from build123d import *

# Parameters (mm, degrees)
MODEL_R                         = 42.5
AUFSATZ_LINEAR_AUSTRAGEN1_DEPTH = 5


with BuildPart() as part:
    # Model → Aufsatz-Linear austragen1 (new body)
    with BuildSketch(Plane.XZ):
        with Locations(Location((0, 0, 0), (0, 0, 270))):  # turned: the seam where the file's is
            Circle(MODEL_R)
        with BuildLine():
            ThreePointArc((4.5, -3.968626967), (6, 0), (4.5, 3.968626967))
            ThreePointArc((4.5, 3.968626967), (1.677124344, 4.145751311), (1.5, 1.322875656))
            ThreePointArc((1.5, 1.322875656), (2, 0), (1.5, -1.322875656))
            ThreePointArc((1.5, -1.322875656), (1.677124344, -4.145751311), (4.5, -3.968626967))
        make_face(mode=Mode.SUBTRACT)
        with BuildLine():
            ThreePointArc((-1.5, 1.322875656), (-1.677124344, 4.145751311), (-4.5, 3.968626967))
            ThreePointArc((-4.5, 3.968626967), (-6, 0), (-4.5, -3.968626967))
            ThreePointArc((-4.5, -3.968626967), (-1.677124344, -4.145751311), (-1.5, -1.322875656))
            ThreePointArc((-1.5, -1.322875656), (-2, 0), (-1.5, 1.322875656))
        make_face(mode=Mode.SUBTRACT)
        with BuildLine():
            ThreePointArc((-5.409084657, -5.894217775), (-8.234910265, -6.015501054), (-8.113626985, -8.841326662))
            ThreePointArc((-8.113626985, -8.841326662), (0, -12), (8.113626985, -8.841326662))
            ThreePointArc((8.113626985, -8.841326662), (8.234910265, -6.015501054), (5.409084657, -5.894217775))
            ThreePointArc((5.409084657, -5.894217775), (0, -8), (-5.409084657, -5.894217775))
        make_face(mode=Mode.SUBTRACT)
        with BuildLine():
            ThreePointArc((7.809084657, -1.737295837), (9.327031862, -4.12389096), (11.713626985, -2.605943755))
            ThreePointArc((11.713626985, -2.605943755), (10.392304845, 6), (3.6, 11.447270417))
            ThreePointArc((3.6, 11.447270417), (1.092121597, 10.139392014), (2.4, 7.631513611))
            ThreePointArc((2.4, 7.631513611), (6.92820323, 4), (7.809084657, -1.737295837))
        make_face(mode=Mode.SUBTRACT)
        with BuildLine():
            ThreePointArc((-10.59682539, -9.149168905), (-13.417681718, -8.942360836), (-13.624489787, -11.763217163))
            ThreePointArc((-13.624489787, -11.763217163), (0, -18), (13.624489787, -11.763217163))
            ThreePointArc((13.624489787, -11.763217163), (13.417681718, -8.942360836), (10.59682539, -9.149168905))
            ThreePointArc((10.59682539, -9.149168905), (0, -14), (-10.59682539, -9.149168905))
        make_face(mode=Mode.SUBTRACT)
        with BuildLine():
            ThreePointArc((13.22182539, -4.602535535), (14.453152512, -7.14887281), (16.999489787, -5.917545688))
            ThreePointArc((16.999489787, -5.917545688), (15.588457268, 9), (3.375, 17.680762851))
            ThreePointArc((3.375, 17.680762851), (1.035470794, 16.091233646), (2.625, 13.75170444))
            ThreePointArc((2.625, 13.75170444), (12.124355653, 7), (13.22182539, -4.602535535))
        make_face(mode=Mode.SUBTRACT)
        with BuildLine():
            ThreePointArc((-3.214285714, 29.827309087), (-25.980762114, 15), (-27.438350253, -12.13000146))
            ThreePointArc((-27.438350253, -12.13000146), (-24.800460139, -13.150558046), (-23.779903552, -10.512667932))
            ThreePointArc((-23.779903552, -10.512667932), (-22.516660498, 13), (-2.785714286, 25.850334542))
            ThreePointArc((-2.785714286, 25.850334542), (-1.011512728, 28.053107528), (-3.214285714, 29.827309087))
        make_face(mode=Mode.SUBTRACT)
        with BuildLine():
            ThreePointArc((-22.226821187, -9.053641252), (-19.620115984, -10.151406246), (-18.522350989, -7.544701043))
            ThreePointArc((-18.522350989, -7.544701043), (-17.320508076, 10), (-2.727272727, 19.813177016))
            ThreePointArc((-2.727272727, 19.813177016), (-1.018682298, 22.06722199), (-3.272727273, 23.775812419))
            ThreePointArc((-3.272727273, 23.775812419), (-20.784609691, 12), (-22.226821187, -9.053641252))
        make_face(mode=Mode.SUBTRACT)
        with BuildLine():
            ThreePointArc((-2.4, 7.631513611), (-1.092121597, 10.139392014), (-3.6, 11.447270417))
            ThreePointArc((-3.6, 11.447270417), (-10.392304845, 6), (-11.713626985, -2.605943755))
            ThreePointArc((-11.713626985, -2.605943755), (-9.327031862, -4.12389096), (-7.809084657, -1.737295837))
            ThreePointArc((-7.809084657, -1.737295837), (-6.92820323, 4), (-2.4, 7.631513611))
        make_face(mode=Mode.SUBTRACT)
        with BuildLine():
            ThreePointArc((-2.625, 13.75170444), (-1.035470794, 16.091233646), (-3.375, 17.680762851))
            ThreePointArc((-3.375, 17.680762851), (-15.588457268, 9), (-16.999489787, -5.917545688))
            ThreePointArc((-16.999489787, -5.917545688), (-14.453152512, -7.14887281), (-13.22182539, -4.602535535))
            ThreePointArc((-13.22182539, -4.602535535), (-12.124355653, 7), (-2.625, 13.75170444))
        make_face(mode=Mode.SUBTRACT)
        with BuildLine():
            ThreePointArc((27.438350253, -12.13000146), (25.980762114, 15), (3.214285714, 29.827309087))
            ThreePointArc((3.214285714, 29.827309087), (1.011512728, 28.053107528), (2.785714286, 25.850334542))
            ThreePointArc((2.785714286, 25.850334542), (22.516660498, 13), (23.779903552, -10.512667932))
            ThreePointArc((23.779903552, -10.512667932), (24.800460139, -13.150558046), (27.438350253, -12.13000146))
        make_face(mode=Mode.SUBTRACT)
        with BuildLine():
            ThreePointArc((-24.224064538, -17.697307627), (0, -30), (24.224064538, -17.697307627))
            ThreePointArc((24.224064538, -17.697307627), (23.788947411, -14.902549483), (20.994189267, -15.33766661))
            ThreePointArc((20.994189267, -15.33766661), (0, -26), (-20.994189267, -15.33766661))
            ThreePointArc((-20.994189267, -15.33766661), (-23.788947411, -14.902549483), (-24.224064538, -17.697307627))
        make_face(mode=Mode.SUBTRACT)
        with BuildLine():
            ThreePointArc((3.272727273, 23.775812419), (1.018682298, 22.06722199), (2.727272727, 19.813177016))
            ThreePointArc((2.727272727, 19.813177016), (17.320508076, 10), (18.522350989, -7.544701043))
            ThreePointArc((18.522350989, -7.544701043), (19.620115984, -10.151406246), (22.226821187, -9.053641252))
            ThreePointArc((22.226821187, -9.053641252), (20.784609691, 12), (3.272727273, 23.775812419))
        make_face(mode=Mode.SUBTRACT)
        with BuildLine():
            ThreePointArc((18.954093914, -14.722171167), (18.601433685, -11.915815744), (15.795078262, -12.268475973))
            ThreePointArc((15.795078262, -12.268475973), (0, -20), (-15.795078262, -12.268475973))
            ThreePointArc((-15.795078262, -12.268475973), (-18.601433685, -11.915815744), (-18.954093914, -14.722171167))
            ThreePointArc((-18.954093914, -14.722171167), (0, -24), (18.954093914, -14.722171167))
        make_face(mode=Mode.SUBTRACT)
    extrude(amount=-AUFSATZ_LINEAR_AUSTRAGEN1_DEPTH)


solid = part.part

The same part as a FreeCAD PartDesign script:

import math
import FreeCAD as App
import Part
import Sketcher
from FreeCAD import Vector

doc = App.newDocument("Part")
body = doc.addObject("PartDesign::Body", "Body")

# Sketch on XZ plane
sketch1 = doc.addObject("Sketcher::SketchObject", "Sketch")
body.addObject(sketch1)
sketch1.AttachmentSupport = (doc.XZ_Plane, [""])
sketch1.MapMode = "FlatFace"
sketch1.addGeometry(Part.Circle(Vector(0, 0, 0), Vector(0, 0, 1), 42.5), False)
sketch1.addGeometry(Part.ArcOfCircle(Part.Circle(Vector(0, 0, 0), Vector(0, 0, 1), 30), math.radians(96.15064), math.radians(203.84936)), False)
sketch1.addGeometry(Part.ArcOfCircle(Part.Circle(Vector(-3, 27.838822, 0), Vector(0, 0, 1), 2), math.radians(-83.84936), math.radians(96.15064)), False)
sketch1.addGeometry(Part.ArcOfCircle(Part.Circle(Vector(0, 0, 0), Vector(0, 0, 1), 26), math.radians(96.15064), math.radians(203.84936)), False)
sketch1.addGeometry(Part.ArcOfCircle(Part.Circle(Vector(-25.609127, -11.321335, 0), Vector(0, 0, 1), 2), math.radians(-156.15064), math.radians(23.84936)), False)
sketch1.addGeometry(Part.ArcOfCircle(Part.Circle(Vector(-20.374586, -8.299171, 0), Vector(0, 0, 1), 2), math.radians(-157.83748), math.radians(22.16252)), False)
sketch1.addGeometry(Part.ArcOfCircle(Part.Circle(Vector(0, 0, 0), Vector(0, 0, 1), 24), math.radians(97.83748), math.radians(202.16252)), False)
sketch1.addGeometry(Part.ArcOfCircle(Part.Circle(Vector(-3, 21.794495, 0), Vector(0, 0, 1), 2), math.radians(-82.16252), math.radians(97.83748)), False)
sketch1.addGeometry(Part.ArcOfCircle(Part.Circle(Vector(0, 0, 0), Vector(0, 0, 1), 20), math.radians(97.83748), math.radians(202.16252)), False)
sketch1.addGeometry(Part.ArcOfCircle(Part.Circle(Vector(-3, 15.716234, 0), Vector(0, 0, 1), 2), math.radians(-79.193077), math.radians(100.806923)), False)
sketch1.addGeometry(Part.ArcOfCircle(Part.Circle(Vector(0, 0, 0), Vector(0, 0, 1), 14), math.radians(100.806923), math.radians(199.193077)), False)
sketch1.addGeometry(Part.ArcOfCircle(Part.Circle(Vector(-15.110658, -5.260041, 0), Vector(0, 0, 1), 2), math.radians(-160.806923), math.radians(19.193077)), False)
sketch1.addGeometry(Part.ArcOfCircle(Part.Circle(Vector(0, 0, 0), Vector(0, 0, 1), 18), math.radians(100.806923), math.radians(199.193077)), False)
sketch1.addGeometry(Part.ArcOfCircle(Part.Circle(Vector(-3, 9.539392, 0), Vector(0, 0, 1), 2), math.radians(-72.542397), math.radians(107.457603)), False)
sketch1.addGeometry(Part.ArcOfCircle(Part.Circle(Vector(0, 0, 0), Vector(0, 0, 1), 8), math.radians(107.457603), math.radians(192.542397)), False)
sketch1.addGeometry(Part.ArcOfCircle(Part.Circle(Vector(-9.761356, -2.17162, 0), Vector(0, 0, 1), 2), math.radians(-167.457603), math.radians(12.542397)), False)
sketch1.addGeometry(Part.ArcOfCircle(Part.Circle(Vector(0, 0, 0), Vector(0, 0, 1), 12), math.radians(107.457603), math.radians(192.542397)), False)
sketch1.addGeometry(Part.ArcOfCircle(Part.Circle(Vector(-3, 2.645751, 0), Vector(0, 0, 1), 2), math.radians(-41.409622), math.radians(138.590378)), False)
sketch1.addGeometry(Part.ArcOfCircle(Part.Circle(Vector(0, 0, 0), Vector(0, 0, 1), 2), math.radians(138.590378), math.radians(221.409622)), False)
sketch1.addGeometry(Part.ArcOfCircle(Part.Circle(Vector(-3, -2.645751, 0), Vector(0, 0, 1), 2), math.radians(-138.590378), math.radians(41.409622)), False)
sketch1.addGeometry(Part.ArcOfCircle(Part.Circle(Vector(0, 0, 0), Vector(0, 0, 1), 6), math.radians(138.590378), math.radians(221.409622)), False)
sketch1.addGeometry(Part.ArcOfCircle(Part.Circle(Vector(0, 0, 0), Vector(0, 0, 1), 6), math.radians(-41.409622), math.radians(41.409622)), False)
sketch1.addGeometry(Part.ArcOfCircle(Part.Circle(Vector(3, -2.645751, 0), Vector(0, 0, 1), 2), math.radians(138.590378), math.radians(318.590378)), False)
sketch1.addGeometry(Part.ArcOfCircle(Part.Circle(Vector(0, 0, 0), Vector(0, 0, 1), 2), math.radians(-41.409622), math.radians(41.409622)), False)
sketch1.addGeometry(Part.ArcOfCircle(Part.Circle(Vector(3, 2.645751, 0), Vector(0, 0, 1), 2), math.radians(41.409622), math.radians(221.409622)), False)
sketch1.addGeometry(Part.ArcOfCircle(Part.Circle(Vector(9.761356, -2.17162, 0), Vector(0, 0, 1), 2), math.radians(167.457603), math.radians(347.457603)), False)
sketch1.addGeometry(Part.ArcOfCircle(Part.Circle(Vector(0, 0, 0), Vector(0, 0, 1), 8), math.radians(-12.542397), math.radians(72.542397)), False)
sketch1.addGeometry(Part.ArcOfCircle(Part.Circle(Vector(3, 9.539392, 0), Vector(0, 0, 1), 2), math.radians(72.542397), math.radians(252.542397)), False)
sketch1.addGeometry(Part.ArcOfCircle(Part.Circle(Vector(0, 0, 0), Vector(0, 0, 1), 12), math.radians(-12.542397), math.radians(72.542397)), False)
sketch1.addGeometry(Part.ArcOfCircle(Part.Circle(Vector(15.110658, -5.260041, 0), Vector(0, 0, 1), 2), math.radians(160.806923), math.radians(340.806923)), False)
sketch1.addGeometry(Part.ArcOfCircle(Part.Circle(Vector(0, 0, 0), Vector(0, 0, 1), 14), math.radians(-19.193077), math.radians(79.193077)), False)
sketch1.addGeometry(Part.ArcOfCircle(Part.Circle(Vector(3, 15.716234, 0), Vector(0, 0, 1), 2), math.radians(79.193077), math.radians(259.193077)), False)
sketch1.addGeometry(Part.ArcOfCircle(Part.Circle(Vector(0, 0, 0), Vector(0, 0, 1), 18), math.radians(-19.193077), math.radians(79.193077)), False)
sketch1.addGeometry(Part.ArcOfCircle(Part.Circle(Vector(3, 21.794495, 0), Vector(0, 0, 1), 2), math.radians(82.16252), math.radians(262.16252)), False)
sketch1.addGeometry(Part.ArcOfCircle(Part.Circle(Vector(0, 0, 0), Vector(0, 0, 1), 24), math.radians(-22.16252), math.radians(82.16252)), False)
sketch1.addGeometry(Part.ArcOfCircle(Part.Circle(Vector(20.374586, -8.299171, 0), Vector(0, 0, 1), 2), math.radians(157.83748), math.radians(337.83748)), False)
sketch1.addGeometry(Part.ArcOfCircle(Part.Circle(Vector(0, 0, 0), Vector(0, 0, 1), 20), math.radians(-22.16252), math.radians(82.16252)), False)
sketch1.addGeometry(Part.ArcOfCircle(Part.Circle(Vector(0, 0, 0), Vector(0, 0, 1), 30), math.radians(-23.84936), math.radians(83.84936)), False)
sketch1.addGeometry(Part.ArcOfCircle(Part.Circle(Vector(25.609127, -11.321335, 0), Vector(0, 0, 1), 2), math.radians(156.15064), math.radians(336.15064)), False)
sketch1.addGeometry(Part.ArcOfCircle(Part.Circle(Vector(0, 0, 0), Vector(0, 0, 1), 26), math.radians(-23.84936), math.radians(83.84936)), False)
sketch1.addGeometry(Part.ArcOfCircle(Part.Circle(Vector(3, 27.838822, 0), Vector(0, 0, 1), 2), math.radians(83.84936), math.radians(263.84936)), False)
sketch1.addGeometry(Part.ArcOfCircle(Part.Circle(Vector(-6.761356, -7.367772, 0), Vector(0, 0, 1), 2), math.radians(47.457603), math.radians(227.457603)), False)
sketch1.addGeometry(Part.ArcOfCircle(Part.Circle(Vector(0, 0, 0), Vector(0, 0, 1), 8), math.radians(-132.542397), math.radians(-47.457603)), False)
sketch1.addGeometry(Part.ArcOfCircle(Part.Circle(Vector(6.761356, -7.367772, 0), Vector(0, 0, 1), 2), math.radians(-47.457603), math.radians(132.542397)), False)
sketch1.addGeometry(Part.ArcOfCircle(Part.Circle(Vector(0, 0, 0), Vector(0, 0, 1), 12), math.radians(-132.542397), math.radians(-47.457603)), False)
sketch1.addGeometry(Part.ArcOfCircle(Part.Circle(Vector(-12.110658, -10.456193, 0), Vector(0, 0, 1), 2), math.radians(40.806923), math.radians(220.806923)), False)
sketch1.addGeometry(Part.ArcOfCircle(Part.Circle(Vector(0, 0, 0), Vector(0, 0, 1), 14), math.radians(-139.193077), math.radians(-40.806923)), False)
sketch1.addGeometry(Part.ArcOfCircle(Part.Circle(Vector(12.110658, -10.456193, 0), Vector(0, 0, 1), 2), math.radians(-40.806923), math.radians(139.193077)), False)
sketch1.addGeometry(Part.ArcOfCircle(Part.Circle(Vector(0, 0, 0), Vector(0, 0, 1), 18), math.radians(-139.193077), math.radians(-40.806923)), False)
sketch1.addGeometry(Part.ArcOfCircle(Part.Circle(Vector(17.374586, -13.495324, 0), Vector(0, 0, 1), 2), math.radians(-37.83748), math.radians(142.16252)), False)
sketch1.addGeometry(Part.ArcOfCircle(Part.Circle(Vector(0, 0, 0), Vector(0, 0, 1), 24), math.radians(-142.16252), math.radians(-37.83748)), False)
sketch1.addGeometry(Part.ArcOfCircle(Part.Circle(Vector(-17.374586, -13.495324, 0), Vector(0, 0, 1), 2), math.radians(37.83748), math.radians(217.83748)), False)
sketch1.addGeometry(Part.ArcOfCircle(Part.Circle(Vector(0, 0, 0), Vector(0, 0, 1), 20), math.radians(-142.16252), math.radians(-37.83748)), False)
sketch1.addGeometry(Part.ArcOfCircle(Part.Circle(Vector(0, 0, 0), Vector(0, 0, 1), 30), math.radians(-143.84936), math.radians(-36.15064)), False)
sketch1.addGeometry(Part.ArcOfCircle(Part.Circle(Vector(-22.609127, -16.517487, 0), Vector(0, 0, 1), 2), math.radians(36.15064), math.radians(216.15064)), False)
sketch1.addGeometry(Part.ArcOfCircle(Part.Circle(Vector(0, 0, 0), Vector(0, 0, 1), 26), math.radians(-143.84936), math.radians(-36.15064)), False)
sketch1.addGeometry(Part.ArcOfCircle(Part.Circle(Vector(22.609127, -16.517487, 0), Vector(0, 0, 1), 2), math.radians(-36.15064), math.radians(143.84936)), False)
sketch1.addConstraint(Sketcher.Constraint("Tangent", 1, 1, 2, 2))
sketch1.addConstraint(Sketcher.Constraint("Tangent", 2, 1, 3, 1))
sketch1.addConstraint(Sketcher.Constraint("Tangent", 3, 2, 4, 2))
sketch1.addConstraint(Sketcher.Constraint("Tangent", 4, 1, 1, 2))
sketch1.addConstraint(Sketcher.Constraint("Tangent", 5, 1, 6, 2))
sketch1.addConstraint(Sketcher.Constraint("Tangent", 6, 1, 7, 2))
sketch1.addConstraint(Sketcher.Constraint("Tangent", 7, 1, 8, 1))
sketch1.addConstraint(Sketcher.Constraint("Tangent", 8, 2, 5, 2))
sketch1.addConstraint(Sketcher.Constraint("Tangent", 9, 1, 10, 1))
sketch1.addConstraint(Sketcher.Constraint("Tangent", 10, 2, 11, 2))
sketch1.addConstraint(Sketcher.Constraint("Tangent", 11, 1, 12, 2))
sketch1.addConstraint(Sketcher.Constraint("Tangent", 12, 1, 9, 2))
sketch1.addConstraint(Sketcher.Constraint("Tangent", 13, 1, 14, 1))
sketch1.addConstraint(Sketcher.Constraint("Tangent", 14, 2, 15, 2))
sketch1.addConstraint(Sketcher.Constraint("Tangent", 15, 1, 16, 2))
sketch1.addConstraint(Sketcher.Constraint("Tangent", 16, 1, 13, 2))
sketch1.addConstraint(Sketcher.Constraint("Tangent", 17, 1, 18, 1))
sketch1.addConstraint(Sketcher.Constraint("Tangent", 18, 2, 19, 2))
sketch1.addConstraint(Sketcher.Constraint("Tangent", 19, 1, 20, 2))
sketch1.addConstraint(Sketcher.Constraint("Tangent", 20, 1, 17, 2))
sketch1.addConstraint(Sketcher.Constraint("Tangent", 21, 1, 22, 2))
sketch1.addConstraint(Sketcher.Constraint("Tangent", 22, 1, 23, 1))
sketch1.addConstraint(Sketcher.Constraint("Tangent", 23, 2, 24, 2))
sketch1.addConstraint(Sketcher.Constraint("Tangent", 24, 1, 21, 2))
sketch1.addConstraint(Sketcher.Constraint("Tangent", 25, 1, 26, 1))
sketch1.addConstraint(Sketcher.Constraint("Tangent", 26, 2, 27, 2))
sketch1.addConstraint(Sketcher.Constraint("Tangent", 27, 1, 28, 2))
sketch1.addConstraint(Sketcher.Constraint("Tangent", 28, 1, 25, 2))
sketch1.addConstraint(Sketcher.Constraint("Tangent", 29, 1, 30, 1))
sketch1.addConstraint(Sketcher.Constraint("Tangent", 30, 2, 31, 2))
sketch1.addConstraint(Sketcher.Constraint("Tangent", 31, 1, 32, 2))
sketch1.addConstraint(Sketcher.Constraint("Tangent", 32, 1, 29, 2))
sketch1.addConstraint(Sketcher.Constraint("Tangent", 33, 1, 34, 2))
sketch1.addConstraint(Sketcher.Constraint("Tangent", 34, 1, 35, 2))
sketch1.addConstraint(Sketcher.Constraint("Tangent", 35, 1, 36, 1))
sketch1.addConstraint(Sketcher.Constraint("Tangent", 36, 2, 33, 2))
sketch1.addConstraint(Sketcher.Constraint("Tangent", 37, 1, 38, 2))
sketch1.addConstraint(Sketcher.Constraint("Tangent", 38, 1, 39, 1))
sketch1.addConstraint(Sketcher.Constraint("Tangent", 39, 2, 40, 2))
sketch1.addConstraint(Sketcher.Constraint("Tangent", 40, 1, 37, 2))
sketch1.addConstraint(Sketcher.Constraint("Tangent", 41, 1, 42, 1))
sketch1.addConstraint(Sketcher.Constraint("Tangent", 42, 2, 43, 2))
sketch1.addConstraint(Sketcher.Constraint("Tangent", 43, 1, 44, 2))
sketch1.addConstraint(Sketcher.Constraint("Tangent", 44, 1, 41, 2))
sketch1.addConstraint(Sketcher.Constraint("Tangent", 45, 1, 46, 1))
sketch1.addConstraint(Sketcher.Constraint("Tangent", 46, 2, 47, 2))
sketch1.addConstraint(Sketcher.Constraint("Tangent", 47, 1, 48, 2))
sketch1.addConstraint(Sketcher.Constraint("Tangent", 48, 1, 45, 2))
sketch1.addConstraint(Sketcher.Constraint("Tangent", 49, 1, 50, 2))
sketch1.addConstraint(Sketcher.Constraint("Tangent", 50, 1, 51, 2))
sketch1.addConstraint(Sketcher.Constraint("Tangent", 51, 1, 52, 1))
sketch1.addConstraint(Sketcher.Constraint("Tangent", 52, 2, 49, 2))
sketch1.addConstraint(Sketcher.Constraint("Tangent", 53, 1, 54, 2))
sketch1.addConstraint(Sketcher.Constraint("Tangent", 54, 1, 55, 1))
sketch1.addConstraint(Sketcher.Constraint("Tangent", 55, 2, 56, 2))
sketch1.addConstraint(Sketcher.Constraint("Tangent", 56, 1, 53, 2))
sketch1.addConstraint(Sketcher.Constraint("Coincident", 0, 3, -1, 1))
sketch1.addConstraint(Sketcher.Constraint("Coincident", 1, 3, -1, 1))
sketch1.addConstraint(Sketcher.Constraint("Coincident", 3, 3, -1, 1))
sketch1.addConstraint(Sketcher.Constraint("Coincident", 6, 3, -1, 1))
sketch1.addConstraint(Sketcher.Constraint("Coincident", 8, 3, -1, 1))
sketch1.addConstraint(Sketcher.Constraint("Coincident", 10, 3, -1, 1))
sketch1.addConstraint(Sketcher.Constraint("Coincident", 12, 3, -1, 1))
sketch1.addConstraint(Sketcher.Constraint("Coincident", 14, 3, -1, 1))
sketch1.addConstraint(Sketcher.Constraint("Coincident", 16, 3, -1, 1))
sketch1.addConstraint(Sketcher.Constraint("Coincident", 18, 3, -1, 1))
sketch1.addConstraint(Sketcher.Constraint("Coincident", 20, 3, -1, 1))
sketch1.addConstraint(Sketcher.Constraint("Coincident", 21, 3, -1, 1))
sketch1.addConstraint(Sketcher.Constraint("Coincident", 23, 3, -1, 1))
sketch1.addConstraint(Sketcher.Constraint("Coincident", 26, 3, -1, 1))
sketch1.addConstraint(Sketcher.Constraint("Coincident", 28, 3, -1, 1))
sketch1.addConstraint(Sketcher.Constraint("Coincident", 30, 3, -1, 1))
sketch1.addConstraint(Sketcher.Constraint("Coincident", 32, 3, -1, 1))
sketch1.addConstraint(Sketcher.Constraint("Coincident", 34, 3, -1, 1))
sketch1.addConstraint(Sketcher.Constraint("Coincident", 36, 3, -1, 1))
sketch1.addConstraint(Sketcher.Constraint("Coincident", 37, 3, -1, 1))
sketch1.addConstraint(Sketcher.Constraint("Coincident", 39, 3, -1, 1))
sketch1.addConstraint(Sketcher.Constraint("Coincident", 42, 3, -1, 1))
sketch1.addConstraint(Sketcher.Constraint("Coincident", 44, 3, -1, 1))
sketch1.addConstraint(Sketcher.Constraint("Coincident", 46, 3, -1, 1))
sketch1.addConstraint(Sketcher.Constraint("Coincident", 48, 3, -1, 1))
sketch1.addConstraint(Sketcher.Constraint("Coincident", 50, 3, -1, 1))
sketch1.addConstraint(Sketcher.Constraint("Coincident", 52, 3, -1, 1))
sketch1.addConstraint(Sketcher.Constraint("Coincident", 53, 3, -1, 1))
sketch1.addConstraint(Sketcher.Constraint("Coincident", 55, 3, -1, 1))
sketch1.addConstraint(Sketcher.Constraint("Equal", 4, 5))
sketch1.addConstraint(Sketcher.Constraint("Equal", 7, 9))
sketch1.addConstraint(Sketcher.Constraint("Equal", 11, 13))
sketch1.addConstraint(Sketcher.Constraint("Equal", 15, 17))
sketch1.addConstraint(Sketcher.Constraint("Equal", 17, 18))
sketch1.addConstraint(Sketcher.Constraint("Equal", 20, 21))
sketch1.addConstraint(Sketcher.Constraint("Equal", 19, 22))
sketch1.addConstraint(Sketcher.Constraint("Equal", 24, 25))
sketch1.addConstraint(Sketcher.Constraint("Equal", 14, 26))
sketch1.addConstraint(Sketcher.Constraint("Equal", 27, 29))
sketch1.addConstraint(Sketcher.Constraint("Equal", 10, 30))
sketch1.addConstraint(Sketcher.Constraint("Equal", 31, 33))
sketch1.addConstraint(Sketcher.Constraint("Equal", 6, 34))
sketch1.addConstraint(Sketcher.Constraint("Equal", 1, 37))
sketch1.addConstraint(Sketcher.Constraint("Equal", 35, 38))
sketch1.addConstraint(Sketcher.Constraint("Equal", 40, 41))
sketch1.addConstraint(Sketcher.Constraint("Equal", 26, 42))
sketch1.addConstraint(Sketcher.Constraint("Equal", 43, 45))
sketch1.addConstraint(Sketcher.Constraint("Equal", 30, 46))
sketch1.addConstraint(Sketcher.Constraint("Equal", 47, 49))
sketch1.addConstraint(Sketcher.Constraint("Equal", 34, 50))
sketch1.addConstraint(Sketcher.Constraint("Equal", 37, 53))
sketch1.addConstraint(Sketcher.Constraint("Equal", 51, 54))
sketch1.addConstraint(Sketcher.Constraint("Horizontal", 19, 3, 22, 3))
sketch1.addConstraint(Sketcher.Constraint("Horizontal", 17, 3, 24, 3))
sketch1.addConstraint(Sketcher.Constraint("Horizontal", 15, 3, 25, 3))
sketch1.addConstraint(Sketcher.Constraint("Horizontal", 13, 3, 27, 3))
sketch1.addConstraint(Sketcher.Constraint("Horizontal", 11, 3, 29, 3))
sketch1.addConstraint(Sketcher.Constraint("Horizontal", 9, 3, 31, 3))
sketch1.addConstraint(Sketcher.Constraint("Horizontal", 7, 3, 33, 3))
sketch1.addConstraint(Sketcher.Constraint("Horizontal", 5, 3, 35, 3))
sketch1.addConstraint(Sketcher.Constraint("Horizontal", 4, 3, 38, 3))
sketch1.addConstraint(Sketcher.Constraint("Horizontal", 2, 3, 40, 3))
sketch1.addConstraint(Sketcher.Constraint("Horizontal", 41, 3, 43, 3))
sketch1.addConstraint(Sketcher.Constraint("Horizontal", 45, 3, 47, 3))
sketch1.addConstraint(Sketcher.Constraint("Horizontal", 49, 3, 51, 3))
sketch1.addConstraint(Sketcher.Constraint("Horizontal", 54, 3, 56, 3))
sketch1.addConstraint(Sketcher.Constraint("Vertical", 2, 3, 7, 3))
sketch1.addConstraint(Sketcher.Constraint("Vertical", 7, 3, 9, 3))
sketch1.addConstraint(Sketcher.Constraint("Vertical", 9, 3, 13, 3))
sketch1.addConstraint(Sketcher.Constraint("Vertical", 13, 3, 17, 3))
sketch1.addConstraint(Sketcher.Constraint("Vertical", 17, 3, 19, 3))
sketch1.addConstraint(Sketcher.Constraint("Diameter", 0, 85.0))
sketch1.addConstraint(Sketcher.Constraint("Radius", 1, 30.0))
sketch1.addConstraint(Sketcher.Constraint("Radius", 2, 2.0))
sketch1.addConstraint(Sketcher.Constraint("Radius", 6, 24.0))
sketch1.addConstraint(Sketcher.Constraint("Radius", 10, 14.0))
sketch1.addConstraint(Sketcher.Constraint("Radius", 14, 8.0))
sketch1.addConstraint(Sketcher.Constraint("DistanceX", 2, 3, -1, 1, 3.0))
sketch1.addConstraint(Sketcher.Constraint("DistanceY", 4, 1, -1, 1, 12.130001))
sketch1.addConstraint(Sketcher.Constraint("DistanceY", 8, 2, -1, 1, 7.544701))
sketch1.addConstraint(Sketcher.Constraint("DistanceY", 11, 3, -1, 1, 5.260041))
sketch1.addConstraint(Sketcher.Constraint("DistanceY", 15, 3, -1, 1, 2.17162))
sketch1.addConstraint(Sketcher.Constraint("DistanceY", 45, 1, -1, 1, 9.149169))
sketch1.addConstraint(Sketcher.Constraint("DistanceY", 49, 1, -1, 1, 14.722171))
sketch1.addConstraint(Sketcher.Constraint("DistanceX", 54, 1, -1, 1, 20.994189))
sketch1.addConstraint(Sketcher.Constraint("DistanceX", 41, 3, -1, 1, 6.761356))
pad1 = doc.addObject("PartDesign::Pad", "Pad")
body.addObject(pad1)
pad1.Profile = sketch1
pad1.Length = 5
pad1.Reversed = True

doc.recompute()
